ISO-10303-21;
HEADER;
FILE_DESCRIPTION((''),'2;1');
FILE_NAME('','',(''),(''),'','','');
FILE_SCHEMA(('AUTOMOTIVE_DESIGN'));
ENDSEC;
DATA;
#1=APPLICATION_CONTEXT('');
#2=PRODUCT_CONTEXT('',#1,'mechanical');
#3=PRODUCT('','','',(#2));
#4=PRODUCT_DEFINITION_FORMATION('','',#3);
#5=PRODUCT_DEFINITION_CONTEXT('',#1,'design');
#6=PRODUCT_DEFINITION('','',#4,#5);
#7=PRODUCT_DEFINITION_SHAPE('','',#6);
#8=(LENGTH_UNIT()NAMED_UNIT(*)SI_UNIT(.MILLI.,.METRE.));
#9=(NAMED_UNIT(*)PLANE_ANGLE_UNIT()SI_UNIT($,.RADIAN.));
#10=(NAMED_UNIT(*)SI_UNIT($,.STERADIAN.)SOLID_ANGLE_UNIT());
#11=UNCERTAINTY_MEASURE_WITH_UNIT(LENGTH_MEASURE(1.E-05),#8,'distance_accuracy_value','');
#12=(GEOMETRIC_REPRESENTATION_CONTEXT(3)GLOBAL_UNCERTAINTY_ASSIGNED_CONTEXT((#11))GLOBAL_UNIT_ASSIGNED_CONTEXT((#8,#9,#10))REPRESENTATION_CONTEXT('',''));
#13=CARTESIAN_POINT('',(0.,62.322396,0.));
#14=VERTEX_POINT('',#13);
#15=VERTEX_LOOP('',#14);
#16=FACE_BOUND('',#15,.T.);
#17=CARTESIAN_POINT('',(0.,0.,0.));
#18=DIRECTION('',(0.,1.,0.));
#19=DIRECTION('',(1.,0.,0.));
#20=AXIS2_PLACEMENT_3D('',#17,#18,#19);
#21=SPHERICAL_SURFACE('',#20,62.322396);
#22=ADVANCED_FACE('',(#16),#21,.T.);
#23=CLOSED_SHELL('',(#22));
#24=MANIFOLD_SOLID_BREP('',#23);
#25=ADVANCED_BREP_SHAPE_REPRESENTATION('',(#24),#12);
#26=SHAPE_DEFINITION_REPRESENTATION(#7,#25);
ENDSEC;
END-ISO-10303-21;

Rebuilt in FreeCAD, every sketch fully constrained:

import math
import FreeCAD as App
import Part
import Sketcher

V = App.Vector

doc = App.newDocument("Part")
body = doc.addObject("PartDesign::Body", "Body")

sketch1 = body.newObject("Sketcher::SketchObject", "Sketch")
sketch1.AttachmentSupport = (doc.getObject("XY_Plane"), [""])
sketch1.MapMode = "FlatFace"
sketch1.addGeometry([
    Part.LineSegment(V(0, -62, 0), V(0, 62, 0)),
    Part.ArcOfCircle(Part.Circle(V(0, 0, 0), V(0, 0, 1), 62), math.radians(90), math.radians(270)),
], False)
sketch1.addConstraint([
    Sketcher.Constraint("Coincident", 0, 1, 1, 2),
    Sketcher.Constraint("Coincident", 1, 1, 0, 2),
    Sketcher.Constraint("Vertical", 0),
    Sketcher.Constraint("Coincident", 1, 3, -1, 1),
    Sketcher.Constraint("PointOnObject", 0, 1, -2),
    Sketcher.Constraint("Radius", 1, 62.322396),
])
revolution = body.newObject("PartDesign::Revolution", "Revolution")
revolution.Profile = sketch1
revolution.ReferenceAxis = (sketch1, ["V_Axis"])
revolution.Angle = 360

doc.recompute()
